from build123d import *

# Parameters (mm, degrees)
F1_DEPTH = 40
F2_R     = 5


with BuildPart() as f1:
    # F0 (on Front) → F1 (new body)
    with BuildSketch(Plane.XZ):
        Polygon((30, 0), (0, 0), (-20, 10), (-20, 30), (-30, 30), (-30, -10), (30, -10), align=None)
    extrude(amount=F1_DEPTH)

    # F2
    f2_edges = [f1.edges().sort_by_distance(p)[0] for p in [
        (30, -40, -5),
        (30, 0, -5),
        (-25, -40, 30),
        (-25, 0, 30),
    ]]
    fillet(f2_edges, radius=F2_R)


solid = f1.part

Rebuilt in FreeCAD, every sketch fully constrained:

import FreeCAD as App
import Part
import Sketcher
Q = App.Units.Quantity


def edges_at(feature, points):
    """Names of the edges that pass closest to the given points."""
    edges = feature.Shape.Edges
    near = lambda p: min(range(len(edges)), key=lambda i: edges[i].distToShape(Part.Vertex(*p))[0])
    return sorted({f"Edge{near(p) + 1}" for p in points})


def add_polygon(sketch, points):
    """Adds a closed chain of lines whose ends are joined by coincident constraints."""
    first, n = sketch.GeometryCount, len(points)
    for a, b in zip(points, points[1:] + points[:1]):
        sketch.addGeometry(Part.LineSegment(App.Vector(*a, 0), App.Vector(*b, 0)), False)
    for i in range(n):
        sketch.addConstraint(Sketcher.Constraint("Coincident", first + i, 2, first + (i + 1) % n, 1))

doc = App.newDocument("Part")
params = doc.addObject("Spreadsheet::Sheet", "Params")
for row, (alias, value) in enumerate([
    ("sketch1_width", "30 mm"),
    ("sketch1_width2", "10 mm"),
    ("sketch1_width3", "60 mm"),
    ("sketch1_height", "20 mm"),
    ("sketch1_height2", "40 mm"),
    ("pad1_length", "40 mm"),
    ("fillet_radius", "5 mm"),
], start=1):
    params.set(f"A{row}", alias)
    params.set(f"B{row}", "=" + value)
    params.setAlias(f"B{row}", alias)

body = doc.addObject("PartDesign::Body", "Body")

# Sketch on XZ plane
sketch1 = body.newObject("Sketcher::SketchObject", "Sketch")
sketch1.AttachmentSupport = (doc.getObject("XZ_Plane"), [""])
sketch1.MapMode = "FlatFace"
add_polygon(sketch1, [(30, 0), (0, 0), (-20, 10), (-20, 30), (-30, 30), (-30, -10), (30, -10)])  # lines 0-6
sketch1.addConstraint([
    Sketcher.Constraint("Horizontal", 0),
    Sketcher.Constraint("Vertical", 2),
    Sketcher.Constraint("Horizontal", 3),
    Sketcher.Constraint("Vertical", 4),
    Sketcher.Constraint("Horizontal", 5),
    Sketcher.Constraint("Vertical", 6),
    Sketcher.Constraint("Coincident", 0, 2, -1, 1),
    Sketcher.Constraint("Equal", 3, 6),
    Sketcher.Constraint("DistanceX", 0, 2, 0, 1, Q("30 mm")),
    Sketcher.Constraint("DistanceX", 3, 2, 3, 1, Q("10 mm")),
    Sketcher.Constraint("DistanceX", 5, 1, 5, 2, Q("60 mm")),
    Sketcher.Constraint("DistanceY", 2, 1, 2, 2, Q("20 mm")),
    Sketcher.Constraint("DistanceY", 4, 2, 4, 1, Q("40 mm")),
])
sketch1.setExpression("Constraints[15]", "Params.sketch1_width")
sketch1.setExpression("Constraints[16]", "Params.sketch1_width2")
sketch1.setExpression("Constraints[17]", "Params.sketch1_width3")
sketch1.setExpression("Constraints[18]", "Params.sketch1_height")
sketch1.setExpression("Constraints[19]", "Params.sketch1_height2")
pad1 = body.newObject("PartDesign::Pad", "Pad")
pad1.Profile = sketch1
pad1.setExpression("Length", "Params.pad1_length")
doc.recompute()

fillet = body.newObject("PartDesign::Fillet", "Fillet")
fillet.Base = (pad1, edges_at(pad1, [
    (30, -40, -5),
    (30, 0, -5),
    (-25, -40, 30),
    (-25, 0, 30),
]))
fillet.setExpression("Radius", "Params.fillet_radius")

doc.recompute()
